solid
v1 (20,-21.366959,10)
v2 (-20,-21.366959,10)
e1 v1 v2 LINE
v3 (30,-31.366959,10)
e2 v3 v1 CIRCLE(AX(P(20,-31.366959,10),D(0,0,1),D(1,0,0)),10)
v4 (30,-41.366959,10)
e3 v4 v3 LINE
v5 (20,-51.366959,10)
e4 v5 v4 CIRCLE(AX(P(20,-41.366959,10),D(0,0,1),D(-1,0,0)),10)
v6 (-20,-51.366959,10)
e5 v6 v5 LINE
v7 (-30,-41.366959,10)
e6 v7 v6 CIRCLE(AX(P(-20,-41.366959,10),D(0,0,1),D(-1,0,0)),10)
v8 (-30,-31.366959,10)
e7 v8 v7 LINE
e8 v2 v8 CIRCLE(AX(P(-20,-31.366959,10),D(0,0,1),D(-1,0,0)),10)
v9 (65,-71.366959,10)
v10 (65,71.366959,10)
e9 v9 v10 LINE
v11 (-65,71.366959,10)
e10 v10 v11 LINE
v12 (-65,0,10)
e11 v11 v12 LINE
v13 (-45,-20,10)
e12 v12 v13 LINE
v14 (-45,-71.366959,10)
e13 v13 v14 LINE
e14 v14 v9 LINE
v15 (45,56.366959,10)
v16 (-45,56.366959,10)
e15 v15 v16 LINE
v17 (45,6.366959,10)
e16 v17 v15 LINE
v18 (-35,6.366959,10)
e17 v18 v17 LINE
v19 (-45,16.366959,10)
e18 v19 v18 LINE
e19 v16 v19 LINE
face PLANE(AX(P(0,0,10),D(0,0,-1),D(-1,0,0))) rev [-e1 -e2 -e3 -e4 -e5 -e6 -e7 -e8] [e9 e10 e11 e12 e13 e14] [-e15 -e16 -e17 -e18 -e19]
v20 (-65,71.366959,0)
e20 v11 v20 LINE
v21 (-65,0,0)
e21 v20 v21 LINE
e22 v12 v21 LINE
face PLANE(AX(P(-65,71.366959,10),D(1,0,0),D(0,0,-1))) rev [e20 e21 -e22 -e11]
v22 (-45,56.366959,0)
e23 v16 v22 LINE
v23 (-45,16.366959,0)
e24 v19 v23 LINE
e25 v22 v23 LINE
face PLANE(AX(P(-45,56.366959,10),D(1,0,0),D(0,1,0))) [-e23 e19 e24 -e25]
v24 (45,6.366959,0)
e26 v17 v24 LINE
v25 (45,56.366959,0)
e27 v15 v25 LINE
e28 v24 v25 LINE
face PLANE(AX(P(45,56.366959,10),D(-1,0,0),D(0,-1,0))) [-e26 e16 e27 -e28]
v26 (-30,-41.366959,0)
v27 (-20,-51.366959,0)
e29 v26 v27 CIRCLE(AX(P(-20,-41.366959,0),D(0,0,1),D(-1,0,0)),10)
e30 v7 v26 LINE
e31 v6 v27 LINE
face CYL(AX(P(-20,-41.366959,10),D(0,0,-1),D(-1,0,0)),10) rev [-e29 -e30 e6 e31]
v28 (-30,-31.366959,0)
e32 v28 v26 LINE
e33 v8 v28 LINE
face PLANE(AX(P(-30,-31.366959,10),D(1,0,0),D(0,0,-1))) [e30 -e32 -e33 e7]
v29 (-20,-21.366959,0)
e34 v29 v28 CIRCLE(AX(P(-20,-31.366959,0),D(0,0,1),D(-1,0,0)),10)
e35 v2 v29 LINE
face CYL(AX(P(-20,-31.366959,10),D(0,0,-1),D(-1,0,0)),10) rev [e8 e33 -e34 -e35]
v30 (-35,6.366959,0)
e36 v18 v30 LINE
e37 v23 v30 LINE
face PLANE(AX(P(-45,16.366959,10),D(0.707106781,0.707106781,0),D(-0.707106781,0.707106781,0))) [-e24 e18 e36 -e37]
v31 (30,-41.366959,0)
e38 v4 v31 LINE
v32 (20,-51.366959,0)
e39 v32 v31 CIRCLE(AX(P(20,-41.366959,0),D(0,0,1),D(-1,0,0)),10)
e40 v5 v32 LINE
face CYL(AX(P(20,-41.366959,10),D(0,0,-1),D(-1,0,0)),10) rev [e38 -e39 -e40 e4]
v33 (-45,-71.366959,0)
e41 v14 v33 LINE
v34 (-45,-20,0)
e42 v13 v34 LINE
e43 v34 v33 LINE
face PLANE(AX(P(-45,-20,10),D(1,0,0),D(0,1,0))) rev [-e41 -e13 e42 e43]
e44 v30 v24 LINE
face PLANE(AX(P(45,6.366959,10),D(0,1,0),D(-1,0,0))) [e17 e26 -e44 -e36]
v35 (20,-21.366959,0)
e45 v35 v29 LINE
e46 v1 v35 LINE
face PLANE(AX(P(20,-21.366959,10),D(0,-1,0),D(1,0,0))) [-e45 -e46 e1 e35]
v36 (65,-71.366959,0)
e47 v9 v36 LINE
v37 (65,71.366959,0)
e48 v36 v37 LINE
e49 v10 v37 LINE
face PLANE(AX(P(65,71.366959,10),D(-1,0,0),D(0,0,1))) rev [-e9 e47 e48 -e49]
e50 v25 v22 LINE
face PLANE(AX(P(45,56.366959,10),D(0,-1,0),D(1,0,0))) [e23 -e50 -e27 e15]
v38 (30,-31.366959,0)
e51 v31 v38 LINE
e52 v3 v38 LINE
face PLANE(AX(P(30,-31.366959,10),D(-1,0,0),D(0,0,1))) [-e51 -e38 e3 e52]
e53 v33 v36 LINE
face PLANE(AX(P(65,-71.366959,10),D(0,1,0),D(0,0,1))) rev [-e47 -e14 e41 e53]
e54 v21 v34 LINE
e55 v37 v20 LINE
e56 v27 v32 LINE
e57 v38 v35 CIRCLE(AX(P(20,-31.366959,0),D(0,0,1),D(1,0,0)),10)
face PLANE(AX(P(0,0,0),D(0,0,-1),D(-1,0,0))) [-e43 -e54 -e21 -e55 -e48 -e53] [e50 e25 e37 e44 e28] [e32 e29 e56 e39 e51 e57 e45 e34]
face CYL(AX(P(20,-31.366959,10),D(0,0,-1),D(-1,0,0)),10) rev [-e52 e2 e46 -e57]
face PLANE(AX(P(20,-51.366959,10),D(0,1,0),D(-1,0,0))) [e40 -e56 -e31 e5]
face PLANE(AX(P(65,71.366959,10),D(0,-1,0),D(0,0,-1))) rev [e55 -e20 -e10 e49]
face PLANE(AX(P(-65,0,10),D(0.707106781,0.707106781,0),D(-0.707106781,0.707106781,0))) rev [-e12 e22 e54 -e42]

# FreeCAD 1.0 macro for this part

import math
import FreeCAD as App
import Part
import Sketcher
from FreeCAD import Vector
Q = App.Units.Quantity


def add_polygon(sketch, points):
    """Adds a closed chain of lines whose ends are joined by coincident constraints."""
    first, n = sketch.GeometryCount, len(points)
    for a, b in zip(points, points[1:] + points[:1]):
        sketch.addGeometry(Part.LineSegment(App.Vector(*a, 0), App.Vector(*b, 0)), False)
    for i in range(n):
        sketch.addConstraint(Sketcher.Constraint("Coincident", first + i, 2, first + (i + 1) % n, 1))

doc = App.newDocument("Part")
body = doc.addObject("PartDesign::Body", "Body")

# Sketch on XY plane
sketch1 = body.newObject("Sketcher::SketchObject", "Sketch")
sketch1.AttachmentSupport = (doc.getObject("XY_Plane"), [""])
sketch1.MapMode = "FlatFace"
add_polygon(sketch1, [(-65, 0), (-45, -20), (-45, -71), (65, -71), (65, 71), (-65, 71)])  # lines 0-5
sketch1.addGeometry(Part.LineSegment(Vector(-20, -21, 0), Vector(20, -21, 0)), False)  # 6
sketch1.addGeometry(Part.ArcOfCircle(Part.Circle(Vector(20, -31, 0), Vector(0, 0, 1), 10), math.radians(0), math.radians(90)), False)  # 7
sketch1.addGeometry(Part.LineSegment(Vector(30, -31, 0), Vector(30, -41, 0)), False)  # 8
sketch1.addGeometry(Part.ArcOfCircle(Part.Circle(Vector(20, -41, 0), Vector(0, 0, 1), 10), math.radians(-90), math.radians(0)), False)  # 9
sketch1.addGeometry(Part.LineSegment(Vector(20, -51, 0), Vector(-20, -51, 0)), False)  # 10
sketch1.addGeometry(Part.ArcOfCircle(Part.Circle(Vector(-20, -41, 0), Vector(0, 0, 1), 10), math.radians(180), math.radians(270)), False)  # 11
sketch1.addGeometry(Part.LineSegment(Vector(-30, -41, 0), Vector(-30, -31, 0)), False)  # 12
sketch1.addGeometry(Part.ArcOfCircle(Part.Circle(Vector(-20, -31, 0), Vector(0, 0, 1), 10), math.radians(90), math.radians(180)), False)  # 13
add_polygon(sketch1, [(-45, 56), (45, 56), (45, 6), (-35, 6), (-45, 16)])  # lines 14-18
sketch1.addConstraint([
    Sketcher.Constraint("Tangent", 6, 2, 7, 2),
    Sketcher.Constraint("Tangent", 7, 1, 8, 1),
    Sketcher.Constraint("Tangent", 8, 2, 9, 2),
    Sketcher.Constraint("Tangent", 9, 1, 10, 1),
    Sketcher.Constraint("Tangent", 10, 2, 11, 2),
    Sketcher.Constraint("Tangent", 11, 1, 12, 1),
    Sketcher.Constraint("Tangent", 12, 2, 13, 2),
    Sketcher.Constraint("Tangent", 13, 1, 6, 1),
    Sketcher.Constraint("Vertical", 1),
    Sketcher.Constraint("Horizontal", 2),
    Sketcher.Constraint("Vertical", 3),
    Sketcher.Constraint("Horizontal", 4),
    Sketcher.Constraint("Vertical", 5),
    Sketcher.Constraint("Horizontal", 6),
    Sketcher.Constraint("Vertical", 8),
    Sketcher.Constraint("Horizontal", 10),
    Sketcher.Constraint("Vertical", 12),
    Sketcher.Constraint("Horizontal", 14),
    Sketcher.Constraint("Vertical", 15),
    Sketcher.Constraint("Horizontal", 16),
    Sketcher.Constraint("Vertical", 18),
    Sketcher.Constraint("Equal", 7, 9),
    Sketcher.Constraint("Equal", 9, 11),
    Sketcher.Constraint("Equal", 11, 13),
    Sketcher.Constraint("Symmetric", 2, 2, 4, 2, -1, 1),
    Sketcher.Constraint("PointOnObject", 5, 2, -1),
    Sketcher.Constraint("Parallel", 0, 17),
    Sketcher.Constraint("Vertical", 1, 2, 17, 2),
    Sketcher.Constraint("Equal", 10, 18),
    Sketcher.Constraint("Radius", 7, Q("10 mm")),
    Sketcher.Constraint("DistanceX", 2, 1, 2, 2, Q("110 mm")),
    Sketcher.Constraint("DistanceX", 4, 2, 4, 1, Q("130 mm")),
    Sketcher.Constraint("DistanceX", 6, 1, 6, 2, Q("40 mm")),
    Sketcher.Constraint("DistanceX", 14, 1, 14, 2, Q("90 mm")),
    Sketcher.Constraint("DistanceX", 16, 2, 16, 1, Q("80 mm")),
    Sketcher.Constraint("DistanceY", 8, 2, 8, 1, Q("10 mm")),
    Sketcher.Constraint("DistanceY", 15, 2, 15, 1, Q("50 mm")),
    Sketcher.Constraint("DistanceX", -1, 1, 7, 3, Q("20 mm")),
    Sketcher.Constraint("DistanceY", 1, 2, 11, 3, Q("30 mm")),
    Sketcher.Constraint("DistanceY", 14, 2, 3, 2, Q("15 mm")),
    Sketcher.Constraint("DistanceY", 1, 2, 1, 1, Q("51.366959 mm")),
])
pad1 = body.newObject("PartDesign::Pad", "Pad")
pad1.Profile = sketch1
pad1.Length = 10

doc.recompute()
